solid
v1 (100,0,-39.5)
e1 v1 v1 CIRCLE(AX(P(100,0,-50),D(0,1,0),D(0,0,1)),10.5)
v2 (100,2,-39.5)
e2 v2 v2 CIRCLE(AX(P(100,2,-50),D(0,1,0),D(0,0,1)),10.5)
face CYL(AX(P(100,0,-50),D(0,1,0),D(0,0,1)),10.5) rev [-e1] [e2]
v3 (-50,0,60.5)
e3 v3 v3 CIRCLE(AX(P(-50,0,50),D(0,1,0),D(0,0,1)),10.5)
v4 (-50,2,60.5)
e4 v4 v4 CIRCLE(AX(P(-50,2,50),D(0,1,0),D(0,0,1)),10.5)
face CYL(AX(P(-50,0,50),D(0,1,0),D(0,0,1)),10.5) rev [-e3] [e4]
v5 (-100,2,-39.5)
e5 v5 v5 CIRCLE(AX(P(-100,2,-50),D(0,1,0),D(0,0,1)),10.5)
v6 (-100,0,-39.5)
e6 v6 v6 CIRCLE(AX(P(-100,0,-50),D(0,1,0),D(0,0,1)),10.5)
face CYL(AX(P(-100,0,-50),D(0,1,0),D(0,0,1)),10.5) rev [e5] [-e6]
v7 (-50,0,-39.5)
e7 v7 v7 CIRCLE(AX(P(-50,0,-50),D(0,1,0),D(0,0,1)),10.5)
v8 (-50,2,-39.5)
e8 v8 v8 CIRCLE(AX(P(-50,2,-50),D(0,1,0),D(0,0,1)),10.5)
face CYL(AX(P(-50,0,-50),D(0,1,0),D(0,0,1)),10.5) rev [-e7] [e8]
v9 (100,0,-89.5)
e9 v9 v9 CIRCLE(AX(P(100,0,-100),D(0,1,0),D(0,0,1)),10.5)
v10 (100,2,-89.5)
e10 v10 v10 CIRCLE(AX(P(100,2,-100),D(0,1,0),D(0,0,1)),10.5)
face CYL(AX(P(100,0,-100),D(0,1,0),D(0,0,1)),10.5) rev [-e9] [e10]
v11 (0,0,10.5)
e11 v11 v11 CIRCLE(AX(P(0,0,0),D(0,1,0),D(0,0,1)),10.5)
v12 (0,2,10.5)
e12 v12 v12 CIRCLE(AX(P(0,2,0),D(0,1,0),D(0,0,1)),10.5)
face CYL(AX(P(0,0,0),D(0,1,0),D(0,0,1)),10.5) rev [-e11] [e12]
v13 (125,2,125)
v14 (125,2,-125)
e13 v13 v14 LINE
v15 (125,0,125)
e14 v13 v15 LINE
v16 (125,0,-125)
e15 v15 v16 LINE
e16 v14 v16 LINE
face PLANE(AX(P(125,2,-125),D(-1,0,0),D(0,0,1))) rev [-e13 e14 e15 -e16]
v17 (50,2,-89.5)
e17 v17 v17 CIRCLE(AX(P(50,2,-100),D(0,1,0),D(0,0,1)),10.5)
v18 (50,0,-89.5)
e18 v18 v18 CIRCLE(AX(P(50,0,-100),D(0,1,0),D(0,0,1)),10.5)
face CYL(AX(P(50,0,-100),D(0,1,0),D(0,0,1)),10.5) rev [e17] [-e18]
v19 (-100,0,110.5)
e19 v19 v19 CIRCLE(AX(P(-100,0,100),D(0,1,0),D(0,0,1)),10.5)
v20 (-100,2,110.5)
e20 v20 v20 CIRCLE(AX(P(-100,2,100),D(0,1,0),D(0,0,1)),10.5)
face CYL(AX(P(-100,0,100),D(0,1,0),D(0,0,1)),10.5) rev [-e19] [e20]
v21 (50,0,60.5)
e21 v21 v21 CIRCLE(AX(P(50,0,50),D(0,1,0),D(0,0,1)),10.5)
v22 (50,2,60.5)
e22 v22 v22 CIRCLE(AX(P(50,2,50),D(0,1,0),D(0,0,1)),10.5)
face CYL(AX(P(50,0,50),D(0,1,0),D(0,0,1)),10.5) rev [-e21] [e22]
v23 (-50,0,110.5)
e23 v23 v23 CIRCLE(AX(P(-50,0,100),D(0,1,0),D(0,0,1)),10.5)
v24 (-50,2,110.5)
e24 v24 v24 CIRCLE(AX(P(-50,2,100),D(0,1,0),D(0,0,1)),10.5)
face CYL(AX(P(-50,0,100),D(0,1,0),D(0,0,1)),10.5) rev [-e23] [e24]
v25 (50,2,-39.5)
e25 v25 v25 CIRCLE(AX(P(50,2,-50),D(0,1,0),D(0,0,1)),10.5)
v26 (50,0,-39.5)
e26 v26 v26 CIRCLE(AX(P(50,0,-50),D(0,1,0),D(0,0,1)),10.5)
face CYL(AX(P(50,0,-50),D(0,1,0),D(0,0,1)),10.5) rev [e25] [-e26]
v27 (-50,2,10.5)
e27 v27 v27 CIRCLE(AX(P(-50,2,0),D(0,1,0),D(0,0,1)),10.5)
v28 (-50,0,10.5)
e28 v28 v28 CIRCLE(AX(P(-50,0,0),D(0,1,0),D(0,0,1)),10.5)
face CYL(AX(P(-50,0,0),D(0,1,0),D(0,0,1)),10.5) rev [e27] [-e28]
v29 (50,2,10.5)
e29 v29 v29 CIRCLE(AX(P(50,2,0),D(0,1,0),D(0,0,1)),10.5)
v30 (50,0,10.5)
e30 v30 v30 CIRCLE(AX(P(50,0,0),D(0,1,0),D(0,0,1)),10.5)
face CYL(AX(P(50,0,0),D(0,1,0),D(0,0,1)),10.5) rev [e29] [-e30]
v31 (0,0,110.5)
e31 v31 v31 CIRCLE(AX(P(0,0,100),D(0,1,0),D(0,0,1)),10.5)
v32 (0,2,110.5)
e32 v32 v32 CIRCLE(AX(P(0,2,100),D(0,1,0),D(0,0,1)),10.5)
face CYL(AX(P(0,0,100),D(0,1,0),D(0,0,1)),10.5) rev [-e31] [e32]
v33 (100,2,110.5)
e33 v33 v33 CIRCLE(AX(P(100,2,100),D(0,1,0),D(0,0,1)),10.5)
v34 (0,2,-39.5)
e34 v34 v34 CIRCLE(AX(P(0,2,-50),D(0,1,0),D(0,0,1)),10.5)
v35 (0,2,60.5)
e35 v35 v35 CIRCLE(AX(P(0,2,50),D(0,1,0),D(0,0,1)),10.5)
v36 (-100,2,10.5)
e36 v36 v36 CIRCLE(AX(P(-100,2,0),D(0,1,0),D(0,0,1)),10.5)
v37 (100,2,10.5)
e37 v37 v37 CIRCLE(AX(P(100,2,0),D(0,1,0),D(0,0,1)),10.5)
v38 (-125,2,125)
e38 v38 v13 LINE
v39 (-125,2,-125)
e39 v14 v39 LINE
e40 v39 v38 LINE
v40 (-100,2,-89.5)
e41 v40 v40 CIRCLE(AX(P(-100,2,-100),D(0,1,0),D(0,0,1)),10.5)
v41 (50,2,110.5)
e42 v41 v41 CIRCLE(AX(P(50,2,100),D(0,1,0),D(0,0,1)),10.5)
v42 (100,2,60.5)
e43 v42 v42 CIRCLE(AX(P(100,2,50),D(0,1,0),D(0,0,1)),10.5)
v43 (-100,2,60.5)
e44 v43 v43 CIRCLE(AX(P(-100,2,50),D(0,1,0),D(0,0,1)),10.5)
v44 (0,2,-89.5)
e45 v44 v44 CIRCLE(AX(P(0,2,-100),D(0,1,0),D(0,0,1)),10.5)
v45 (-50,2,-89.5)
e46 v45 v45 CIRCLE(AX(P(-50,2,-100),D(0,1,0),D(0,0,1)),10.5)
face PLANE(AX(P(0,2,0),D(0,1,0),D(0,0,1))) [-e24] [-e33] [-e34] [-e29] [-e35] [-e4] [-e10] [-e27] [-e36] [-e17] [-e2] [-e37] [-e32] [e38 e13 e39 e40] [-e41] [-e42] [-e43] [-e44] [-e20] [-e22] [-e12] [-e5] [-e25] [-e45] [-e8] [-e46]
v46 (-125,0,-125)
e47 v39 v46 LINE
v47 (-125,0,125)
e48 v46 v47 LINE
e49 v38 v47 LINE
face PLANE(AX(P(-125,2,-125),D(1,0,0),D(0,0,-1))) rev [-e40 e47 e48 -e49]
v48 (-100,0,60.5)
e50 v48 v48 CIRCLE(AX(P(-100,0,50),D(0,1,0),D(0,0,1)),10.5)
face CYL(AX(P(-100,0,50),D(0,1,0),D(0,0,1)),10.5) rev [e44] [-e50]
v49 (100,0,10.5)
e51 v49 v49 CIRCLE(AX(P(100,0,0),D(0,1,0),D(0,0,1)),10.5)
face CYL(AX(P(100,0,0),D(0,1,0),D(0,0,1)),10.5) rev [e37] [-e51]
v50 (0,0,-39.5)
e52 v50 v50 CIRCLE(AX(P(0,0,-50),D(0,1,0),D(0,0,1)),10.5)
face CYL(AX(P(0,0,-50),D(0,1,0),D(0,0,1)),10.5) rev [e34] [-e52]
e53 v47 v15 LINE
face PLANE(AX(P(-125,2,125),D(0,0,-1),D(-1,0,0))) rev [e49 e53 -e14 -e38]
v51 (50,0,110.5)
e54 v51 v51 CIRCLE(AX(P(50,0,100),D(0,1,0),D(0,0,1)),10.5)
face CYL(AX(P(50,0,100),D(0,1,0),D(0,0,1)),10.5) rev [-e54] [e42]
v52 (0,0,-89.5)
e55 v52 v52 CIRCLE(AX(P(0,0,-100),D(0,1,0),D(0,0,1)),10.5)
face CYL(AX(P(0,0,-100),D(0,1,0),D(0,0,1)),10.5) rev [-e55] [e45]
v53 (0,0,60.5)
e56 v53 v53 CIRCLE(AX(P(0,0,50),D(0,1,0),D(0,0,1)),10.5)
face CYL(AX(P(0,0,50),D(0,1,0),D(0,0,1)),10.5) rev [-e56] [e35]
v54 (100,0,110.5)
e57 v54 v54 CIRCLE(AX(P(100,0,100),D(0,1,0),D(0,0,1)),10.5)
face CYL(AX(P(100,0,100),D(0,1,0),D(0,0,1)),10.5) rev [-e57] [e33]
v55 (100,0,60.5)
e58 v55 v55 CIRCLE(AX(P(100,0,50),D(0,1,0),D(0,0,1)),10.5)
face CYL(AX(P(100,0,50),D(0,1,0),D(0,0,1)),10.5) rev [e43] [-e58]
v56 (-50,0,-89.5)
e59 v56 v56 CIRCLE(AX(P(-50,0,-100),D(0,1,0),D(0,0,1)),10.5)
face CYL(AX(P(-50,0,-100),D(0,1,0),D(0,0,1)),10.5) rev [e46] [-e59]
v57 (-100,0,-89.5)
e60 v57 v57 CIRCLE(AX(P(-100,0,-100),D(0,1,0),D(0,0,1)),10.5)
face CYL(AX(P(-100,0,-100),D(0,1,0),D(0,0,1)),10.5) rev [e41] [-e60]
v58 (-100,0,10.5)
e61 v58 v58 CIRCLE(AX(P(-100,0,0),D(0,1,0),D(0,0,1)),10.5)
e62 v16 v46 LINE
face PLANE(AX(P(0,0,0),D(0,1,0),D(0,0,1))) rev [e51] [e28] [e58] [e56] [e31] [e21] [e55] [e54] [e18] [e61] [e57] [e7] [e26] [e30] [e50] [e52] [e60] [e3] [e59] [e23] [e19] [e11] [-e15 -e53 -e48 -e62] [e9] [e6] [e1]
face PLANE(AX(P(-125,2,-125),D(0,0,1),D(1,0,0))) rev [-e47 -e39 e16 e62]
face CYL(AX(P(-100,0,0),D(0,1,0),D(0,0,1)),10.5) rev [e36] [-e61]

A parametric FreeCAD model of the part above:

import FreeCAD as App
import Part
import Sketcher

V = App.Vector


def add_polygon(sketch, points):
    """Adds a closed chain of lines whose ends are joined by coincident constraints."""
    first, n = sketch.GeometryCount, len(points)
    for a, b in zip(points, points[1:] + points[:1]):
        sketch.addGeometry(Part.LineSegment(App.Vector(*a, 0), App.Vector(*b, 0)), False)
    for i in range(n):
        sketch.addConstraint(Sketcher.Constraint("Coincident", first + i, 2, first + (i + 1) % n, 1))

doc = App.newDocument("Part")
params = doc.addObject("Spreadsheet::Sheet", "Params")
for row, (alias, value) in enumerate([
    ("sketch1_width", "250 mm"),
    ("pad1_length", "2 mm"),
    ("sketch2_diameter", "21 mm"),
], start=1):
    params.set(f"A{row}", alias)
    params.set(f"B{row}", "=" + value)
    params.setAlias(f"B{row}", alias)

body = doc.addObject("PartDesign::Body", "Body")

# Sketch on XZ plane
sketch1 = body.newObject("Sketcher::SketchObject", "Sketch")
sketch1.AttachmentSupport = (doc.getObject("XZ_Plane"), [""])
sketch1.MapMode = "FlatFace"
add_polygon(sketch1, [(-125, -125), (-125, 125), (125, 125), (125, -125)])  # lines 0-3
sketch1.addConstraint([
    Sketcher.Constraint("Vertical", 0),
    Sketcher.Constraint("Horizontal", 1),
    Sketcher.Constraint("Vertical", 2),
    Sketcher.Constraint("Horizontal", 3),
    Sketcher.Constraint("Symmetric", 0, 2, 2, 2, -1, 1),
    Sketcher.Constraint("Equal", 3, 0),
    Sketcher.Constraint("DistanceX", 1, 1, 1, 2, 250.0),
])
sketch1.setExpression("Constraints[10]", "Params.sketch1_width")
pad1 = body.newObject("PartDesign::Pad", "Pad")
pad1.Profile = sketch1
pad1.setExpression("Length", "Params.pad1_length")
pad1.Reversed = True

# Sketch on XZ plane
sketch2 = body.newObject("Sketcher::SketchObject", "Sketch001")
sketch2.AttachmentSupport = (doc.getObject("XZ_Plane"), [""])
sketch2.MapMode = "FlatFace"
sketch2.AttachmentOffset = App.Placement(V(0, 0, -2), App.Rotation())
sketch2.addGeometry([
    Part.Circle(V(-100, -100, 0), V(0, 0, 1), 10.5),  # 0
    Part.Circle(V(-50, -100, 0), V(0, 0, 1), 10.5),  # 1
    Part.Circle(V(0, -100, 0), V(0, 0, 1), 10.5),  # 2
    Part.Circle(V(50, -100, 0), V(0, 0, 1), 10.5),  # 3
    Part.Circle(V(100, -100, 0), V(0, 0, 1), 10.5),  # 4
    Part.Circle(V(-50, -50, 0), V(0, 0, 1), 10.5),  # 5
    Part.Circle(V(0, -50, 0), V(0, 0, 1), 10.5),  # 6
    Part.Circle(V(50, -50, 0), V(0, 0, 1), 10.5),  # 7
    Part.Circle(V(100, -50, 0), V(0, 0, 1), 10.5),  # 8
    Part.Circle(V(-50, 0, 0), V(0, 0, 1), 10.5),  # 9
    Part.Circle(V(0, 0, 0), V(0, 0, 1), 10.5),  # 10
    Part.Circle(V(50, 0, 0), V(0, 0, 1), 10.5),  # 11
    Part.Circle(V(100, 0, 0), V(0, 0, 1), 10.5),  # 12
    Part.Circle(V(-50, 50, 0), V(0, 0, 1), 10.5),  # 13
    Part.Circle(V(0, 50, 0), V(0, 0, 1), 10.5),  # 14
    Part.Circle(V(50, 50, 0), V(0, 0, 1), 10.5),  # 15
    Part.Circle(V(100, 50, 0), V(0, 0, 1), 10.5),  # 16
    Part.Circle(V(-50, 100, 0), V(0, 0, 1), 10.5),  # 17
    Part.Circle(V(0, 100, 0), V(0, 0, 1), 10.5),  # 18
    Part.Circle(V(50, 100, 0), V(0, 0, 1), 10.5),  # 19
    Part.Circle(V(100, 100, 0), V(0, 0, 1), 10.5),  # 20
    Part.Circle(V(-100, -50, 0), V(0, 0, 1), 10.5),  # 21
    Part.Circle(V(-100, 0, 0), V(0, 0, 1), 10.5),  # 22
    Part.Circle(V(-100, 50, 0), V(0, 0, 1), 10.5),  # 23
    Part.Circle(V(-100, 100, 0), V(0, 0, 1), 10.5),  # 24
], False)
sketch2.addConstraint([
    Sketcher.Constraint("Coincident", 10, 3, -1, 1),
    Sketcher.Constraint("Equal", 0, 1),
    Sketcher.Constraint("Equal", 1, 2),
    Sketcher.Constraint("Equal", 2, 3),
    Sketcher.Constraint("Equal", 3, 4),
    Sketcher.Constraint("Equal", 4, 5),
    Sketcher.Constraint("Equal", 5, 6),
    Sketcher.Constraint("Equal", 6, 7),
    Sketcher.Constraint("Equal", 7, 8),
    Sketcher.Constraint("Equal", 8, 9),
    Sketcher.Constraint("Equal", 9, 10),
    Sketcher.Constraint("Equal", 10, 11),
    Sketcher.Constraint("Equal", 11, 12),
    Sketcher.Constraint("Equal", 12, 13),
    Sketcher.Constraint("Equal", 13, 14),
    Sketcher.Constraint("Equal", 14, 15),
    Sketcher.Constraint("Equal", 15, 16),
    Sketcher.Constraint("Equal", 16, 17),
    Sketcher.Constraint("Equal", 17, 18),
    Sketcher.Constraint("Equal", 18, 19),
    Sketcher.Constraint("Equal", 19, 20),
    Sketcher.Constraint("Equal", 20, 21),
    Sketcher.Constraint("Equal", 21, 22),
    Sketcher.Constraint("Equal", 22, 23),
    Sketcher.Constraint("Equal", 23, 24),
    Sketcher.Constraint("Symmetric", 9, 3, 11, 3, -1, 1),
    Sketcher.Constraint("Symmetric", 7, 3, 13, 3, -1, 1),
    Sketcher.Constraint("Symmetric", 6, 3, 14, 3, -1, 1),
    Sketcher.Constraint("Symmetric", 5, 3, 15, 3, -1, 1),
    Sketcher.Constraint("Symmetric", 3, 3, 17, 3, -1, 1),
    Sketcher.Constraint("Symmetric", 2, 3, 18, 3, -1, 1),
    Sketcher.Constraint("Symmetric", 1, 3, 19, 3, -1, 1),
    Sketcher.Constraint("Symmetric", 0, 3, 20, 3, -1, 1),
    Sketcher.Constraint("Symmetric", 16, 3, 21, 3, -1, 1),
    Sketcher.Constraint("Symmetric", 12, 3, 22, 3, -1, 1),
    Sketcher.Constraint("Symmetric", 8, 3, 23, 3, -1, 1),
    Sketcher.Constraint("Symmetric", 4, 3, 24, 3, -1, 1),
    Sketcher.Constraint("Symmetric", 1, 3, 3, 3, -2),
    Sketcher.Constraint("Symmetric", 0, 3, 4, 3, -2),
    Sketcher.Constraint("Symmetric", 5, 3, 7, 3, -2),
    Sketcher.Constraint("Symmetric", 8, 3, 21, 3, -2),
    Sketcher.Constraint("PointOnObject", 2, 3, -2),
    Sketcher.Constraint("PointOnObject", 6, 3, -2),
    Sketcher.Constraint("PointOnObject", 9, 3, -1),
    Sketcher.Constraint("PointOnObject", 12, 3, -1),
    Sketcher.Constraint("Horizontal", 0, 3, 1, 3),
    Sketcher.Constraint("Horizontal", 1, 3, 2, 3),
    Sketcher.Constraint("Horizontal", 5, 3, 6, 3),
    Sketcher.Constraint("Horizontal", 7, 3, 8, 3),
    Sketcher.Constraint("Vertical", 1, 3, 5, 3),
    Sketcher.Constraint("Vertical", 4, 3, 8, 3),
    Sketcher.Constraint("Vertical", 5, 3, 9, 3),
    Sketcher.Constraint("Vertical", 8, 3, 12, 3),
    Sketcher.Constraint("Diameter", 0, 21.0),
    Sketcher.Constraint("DistanceX", 0, 3, -1, 1, 100.0),
    Sketcher.Constraint("DistanceY", 0, 3, -1, 1, 100.0),
    Sketcher.Constraint("DistanceX", 1, 3, -1, 1, 50.0),
    Sketcher.Constraint("DistanceY", 5, 3, -1, 1, 50.0),
])
sketch2.setExpression("Constraints[53]", "Params.sketch2_diameter")
pocket1 = body.newObject("PartDesign::Pocket", "Pocket")
pocket1.Profile = sketch2
pocket1.Type = "ThroughAll"
pocket1.Reversed = True

doc.recompute()
